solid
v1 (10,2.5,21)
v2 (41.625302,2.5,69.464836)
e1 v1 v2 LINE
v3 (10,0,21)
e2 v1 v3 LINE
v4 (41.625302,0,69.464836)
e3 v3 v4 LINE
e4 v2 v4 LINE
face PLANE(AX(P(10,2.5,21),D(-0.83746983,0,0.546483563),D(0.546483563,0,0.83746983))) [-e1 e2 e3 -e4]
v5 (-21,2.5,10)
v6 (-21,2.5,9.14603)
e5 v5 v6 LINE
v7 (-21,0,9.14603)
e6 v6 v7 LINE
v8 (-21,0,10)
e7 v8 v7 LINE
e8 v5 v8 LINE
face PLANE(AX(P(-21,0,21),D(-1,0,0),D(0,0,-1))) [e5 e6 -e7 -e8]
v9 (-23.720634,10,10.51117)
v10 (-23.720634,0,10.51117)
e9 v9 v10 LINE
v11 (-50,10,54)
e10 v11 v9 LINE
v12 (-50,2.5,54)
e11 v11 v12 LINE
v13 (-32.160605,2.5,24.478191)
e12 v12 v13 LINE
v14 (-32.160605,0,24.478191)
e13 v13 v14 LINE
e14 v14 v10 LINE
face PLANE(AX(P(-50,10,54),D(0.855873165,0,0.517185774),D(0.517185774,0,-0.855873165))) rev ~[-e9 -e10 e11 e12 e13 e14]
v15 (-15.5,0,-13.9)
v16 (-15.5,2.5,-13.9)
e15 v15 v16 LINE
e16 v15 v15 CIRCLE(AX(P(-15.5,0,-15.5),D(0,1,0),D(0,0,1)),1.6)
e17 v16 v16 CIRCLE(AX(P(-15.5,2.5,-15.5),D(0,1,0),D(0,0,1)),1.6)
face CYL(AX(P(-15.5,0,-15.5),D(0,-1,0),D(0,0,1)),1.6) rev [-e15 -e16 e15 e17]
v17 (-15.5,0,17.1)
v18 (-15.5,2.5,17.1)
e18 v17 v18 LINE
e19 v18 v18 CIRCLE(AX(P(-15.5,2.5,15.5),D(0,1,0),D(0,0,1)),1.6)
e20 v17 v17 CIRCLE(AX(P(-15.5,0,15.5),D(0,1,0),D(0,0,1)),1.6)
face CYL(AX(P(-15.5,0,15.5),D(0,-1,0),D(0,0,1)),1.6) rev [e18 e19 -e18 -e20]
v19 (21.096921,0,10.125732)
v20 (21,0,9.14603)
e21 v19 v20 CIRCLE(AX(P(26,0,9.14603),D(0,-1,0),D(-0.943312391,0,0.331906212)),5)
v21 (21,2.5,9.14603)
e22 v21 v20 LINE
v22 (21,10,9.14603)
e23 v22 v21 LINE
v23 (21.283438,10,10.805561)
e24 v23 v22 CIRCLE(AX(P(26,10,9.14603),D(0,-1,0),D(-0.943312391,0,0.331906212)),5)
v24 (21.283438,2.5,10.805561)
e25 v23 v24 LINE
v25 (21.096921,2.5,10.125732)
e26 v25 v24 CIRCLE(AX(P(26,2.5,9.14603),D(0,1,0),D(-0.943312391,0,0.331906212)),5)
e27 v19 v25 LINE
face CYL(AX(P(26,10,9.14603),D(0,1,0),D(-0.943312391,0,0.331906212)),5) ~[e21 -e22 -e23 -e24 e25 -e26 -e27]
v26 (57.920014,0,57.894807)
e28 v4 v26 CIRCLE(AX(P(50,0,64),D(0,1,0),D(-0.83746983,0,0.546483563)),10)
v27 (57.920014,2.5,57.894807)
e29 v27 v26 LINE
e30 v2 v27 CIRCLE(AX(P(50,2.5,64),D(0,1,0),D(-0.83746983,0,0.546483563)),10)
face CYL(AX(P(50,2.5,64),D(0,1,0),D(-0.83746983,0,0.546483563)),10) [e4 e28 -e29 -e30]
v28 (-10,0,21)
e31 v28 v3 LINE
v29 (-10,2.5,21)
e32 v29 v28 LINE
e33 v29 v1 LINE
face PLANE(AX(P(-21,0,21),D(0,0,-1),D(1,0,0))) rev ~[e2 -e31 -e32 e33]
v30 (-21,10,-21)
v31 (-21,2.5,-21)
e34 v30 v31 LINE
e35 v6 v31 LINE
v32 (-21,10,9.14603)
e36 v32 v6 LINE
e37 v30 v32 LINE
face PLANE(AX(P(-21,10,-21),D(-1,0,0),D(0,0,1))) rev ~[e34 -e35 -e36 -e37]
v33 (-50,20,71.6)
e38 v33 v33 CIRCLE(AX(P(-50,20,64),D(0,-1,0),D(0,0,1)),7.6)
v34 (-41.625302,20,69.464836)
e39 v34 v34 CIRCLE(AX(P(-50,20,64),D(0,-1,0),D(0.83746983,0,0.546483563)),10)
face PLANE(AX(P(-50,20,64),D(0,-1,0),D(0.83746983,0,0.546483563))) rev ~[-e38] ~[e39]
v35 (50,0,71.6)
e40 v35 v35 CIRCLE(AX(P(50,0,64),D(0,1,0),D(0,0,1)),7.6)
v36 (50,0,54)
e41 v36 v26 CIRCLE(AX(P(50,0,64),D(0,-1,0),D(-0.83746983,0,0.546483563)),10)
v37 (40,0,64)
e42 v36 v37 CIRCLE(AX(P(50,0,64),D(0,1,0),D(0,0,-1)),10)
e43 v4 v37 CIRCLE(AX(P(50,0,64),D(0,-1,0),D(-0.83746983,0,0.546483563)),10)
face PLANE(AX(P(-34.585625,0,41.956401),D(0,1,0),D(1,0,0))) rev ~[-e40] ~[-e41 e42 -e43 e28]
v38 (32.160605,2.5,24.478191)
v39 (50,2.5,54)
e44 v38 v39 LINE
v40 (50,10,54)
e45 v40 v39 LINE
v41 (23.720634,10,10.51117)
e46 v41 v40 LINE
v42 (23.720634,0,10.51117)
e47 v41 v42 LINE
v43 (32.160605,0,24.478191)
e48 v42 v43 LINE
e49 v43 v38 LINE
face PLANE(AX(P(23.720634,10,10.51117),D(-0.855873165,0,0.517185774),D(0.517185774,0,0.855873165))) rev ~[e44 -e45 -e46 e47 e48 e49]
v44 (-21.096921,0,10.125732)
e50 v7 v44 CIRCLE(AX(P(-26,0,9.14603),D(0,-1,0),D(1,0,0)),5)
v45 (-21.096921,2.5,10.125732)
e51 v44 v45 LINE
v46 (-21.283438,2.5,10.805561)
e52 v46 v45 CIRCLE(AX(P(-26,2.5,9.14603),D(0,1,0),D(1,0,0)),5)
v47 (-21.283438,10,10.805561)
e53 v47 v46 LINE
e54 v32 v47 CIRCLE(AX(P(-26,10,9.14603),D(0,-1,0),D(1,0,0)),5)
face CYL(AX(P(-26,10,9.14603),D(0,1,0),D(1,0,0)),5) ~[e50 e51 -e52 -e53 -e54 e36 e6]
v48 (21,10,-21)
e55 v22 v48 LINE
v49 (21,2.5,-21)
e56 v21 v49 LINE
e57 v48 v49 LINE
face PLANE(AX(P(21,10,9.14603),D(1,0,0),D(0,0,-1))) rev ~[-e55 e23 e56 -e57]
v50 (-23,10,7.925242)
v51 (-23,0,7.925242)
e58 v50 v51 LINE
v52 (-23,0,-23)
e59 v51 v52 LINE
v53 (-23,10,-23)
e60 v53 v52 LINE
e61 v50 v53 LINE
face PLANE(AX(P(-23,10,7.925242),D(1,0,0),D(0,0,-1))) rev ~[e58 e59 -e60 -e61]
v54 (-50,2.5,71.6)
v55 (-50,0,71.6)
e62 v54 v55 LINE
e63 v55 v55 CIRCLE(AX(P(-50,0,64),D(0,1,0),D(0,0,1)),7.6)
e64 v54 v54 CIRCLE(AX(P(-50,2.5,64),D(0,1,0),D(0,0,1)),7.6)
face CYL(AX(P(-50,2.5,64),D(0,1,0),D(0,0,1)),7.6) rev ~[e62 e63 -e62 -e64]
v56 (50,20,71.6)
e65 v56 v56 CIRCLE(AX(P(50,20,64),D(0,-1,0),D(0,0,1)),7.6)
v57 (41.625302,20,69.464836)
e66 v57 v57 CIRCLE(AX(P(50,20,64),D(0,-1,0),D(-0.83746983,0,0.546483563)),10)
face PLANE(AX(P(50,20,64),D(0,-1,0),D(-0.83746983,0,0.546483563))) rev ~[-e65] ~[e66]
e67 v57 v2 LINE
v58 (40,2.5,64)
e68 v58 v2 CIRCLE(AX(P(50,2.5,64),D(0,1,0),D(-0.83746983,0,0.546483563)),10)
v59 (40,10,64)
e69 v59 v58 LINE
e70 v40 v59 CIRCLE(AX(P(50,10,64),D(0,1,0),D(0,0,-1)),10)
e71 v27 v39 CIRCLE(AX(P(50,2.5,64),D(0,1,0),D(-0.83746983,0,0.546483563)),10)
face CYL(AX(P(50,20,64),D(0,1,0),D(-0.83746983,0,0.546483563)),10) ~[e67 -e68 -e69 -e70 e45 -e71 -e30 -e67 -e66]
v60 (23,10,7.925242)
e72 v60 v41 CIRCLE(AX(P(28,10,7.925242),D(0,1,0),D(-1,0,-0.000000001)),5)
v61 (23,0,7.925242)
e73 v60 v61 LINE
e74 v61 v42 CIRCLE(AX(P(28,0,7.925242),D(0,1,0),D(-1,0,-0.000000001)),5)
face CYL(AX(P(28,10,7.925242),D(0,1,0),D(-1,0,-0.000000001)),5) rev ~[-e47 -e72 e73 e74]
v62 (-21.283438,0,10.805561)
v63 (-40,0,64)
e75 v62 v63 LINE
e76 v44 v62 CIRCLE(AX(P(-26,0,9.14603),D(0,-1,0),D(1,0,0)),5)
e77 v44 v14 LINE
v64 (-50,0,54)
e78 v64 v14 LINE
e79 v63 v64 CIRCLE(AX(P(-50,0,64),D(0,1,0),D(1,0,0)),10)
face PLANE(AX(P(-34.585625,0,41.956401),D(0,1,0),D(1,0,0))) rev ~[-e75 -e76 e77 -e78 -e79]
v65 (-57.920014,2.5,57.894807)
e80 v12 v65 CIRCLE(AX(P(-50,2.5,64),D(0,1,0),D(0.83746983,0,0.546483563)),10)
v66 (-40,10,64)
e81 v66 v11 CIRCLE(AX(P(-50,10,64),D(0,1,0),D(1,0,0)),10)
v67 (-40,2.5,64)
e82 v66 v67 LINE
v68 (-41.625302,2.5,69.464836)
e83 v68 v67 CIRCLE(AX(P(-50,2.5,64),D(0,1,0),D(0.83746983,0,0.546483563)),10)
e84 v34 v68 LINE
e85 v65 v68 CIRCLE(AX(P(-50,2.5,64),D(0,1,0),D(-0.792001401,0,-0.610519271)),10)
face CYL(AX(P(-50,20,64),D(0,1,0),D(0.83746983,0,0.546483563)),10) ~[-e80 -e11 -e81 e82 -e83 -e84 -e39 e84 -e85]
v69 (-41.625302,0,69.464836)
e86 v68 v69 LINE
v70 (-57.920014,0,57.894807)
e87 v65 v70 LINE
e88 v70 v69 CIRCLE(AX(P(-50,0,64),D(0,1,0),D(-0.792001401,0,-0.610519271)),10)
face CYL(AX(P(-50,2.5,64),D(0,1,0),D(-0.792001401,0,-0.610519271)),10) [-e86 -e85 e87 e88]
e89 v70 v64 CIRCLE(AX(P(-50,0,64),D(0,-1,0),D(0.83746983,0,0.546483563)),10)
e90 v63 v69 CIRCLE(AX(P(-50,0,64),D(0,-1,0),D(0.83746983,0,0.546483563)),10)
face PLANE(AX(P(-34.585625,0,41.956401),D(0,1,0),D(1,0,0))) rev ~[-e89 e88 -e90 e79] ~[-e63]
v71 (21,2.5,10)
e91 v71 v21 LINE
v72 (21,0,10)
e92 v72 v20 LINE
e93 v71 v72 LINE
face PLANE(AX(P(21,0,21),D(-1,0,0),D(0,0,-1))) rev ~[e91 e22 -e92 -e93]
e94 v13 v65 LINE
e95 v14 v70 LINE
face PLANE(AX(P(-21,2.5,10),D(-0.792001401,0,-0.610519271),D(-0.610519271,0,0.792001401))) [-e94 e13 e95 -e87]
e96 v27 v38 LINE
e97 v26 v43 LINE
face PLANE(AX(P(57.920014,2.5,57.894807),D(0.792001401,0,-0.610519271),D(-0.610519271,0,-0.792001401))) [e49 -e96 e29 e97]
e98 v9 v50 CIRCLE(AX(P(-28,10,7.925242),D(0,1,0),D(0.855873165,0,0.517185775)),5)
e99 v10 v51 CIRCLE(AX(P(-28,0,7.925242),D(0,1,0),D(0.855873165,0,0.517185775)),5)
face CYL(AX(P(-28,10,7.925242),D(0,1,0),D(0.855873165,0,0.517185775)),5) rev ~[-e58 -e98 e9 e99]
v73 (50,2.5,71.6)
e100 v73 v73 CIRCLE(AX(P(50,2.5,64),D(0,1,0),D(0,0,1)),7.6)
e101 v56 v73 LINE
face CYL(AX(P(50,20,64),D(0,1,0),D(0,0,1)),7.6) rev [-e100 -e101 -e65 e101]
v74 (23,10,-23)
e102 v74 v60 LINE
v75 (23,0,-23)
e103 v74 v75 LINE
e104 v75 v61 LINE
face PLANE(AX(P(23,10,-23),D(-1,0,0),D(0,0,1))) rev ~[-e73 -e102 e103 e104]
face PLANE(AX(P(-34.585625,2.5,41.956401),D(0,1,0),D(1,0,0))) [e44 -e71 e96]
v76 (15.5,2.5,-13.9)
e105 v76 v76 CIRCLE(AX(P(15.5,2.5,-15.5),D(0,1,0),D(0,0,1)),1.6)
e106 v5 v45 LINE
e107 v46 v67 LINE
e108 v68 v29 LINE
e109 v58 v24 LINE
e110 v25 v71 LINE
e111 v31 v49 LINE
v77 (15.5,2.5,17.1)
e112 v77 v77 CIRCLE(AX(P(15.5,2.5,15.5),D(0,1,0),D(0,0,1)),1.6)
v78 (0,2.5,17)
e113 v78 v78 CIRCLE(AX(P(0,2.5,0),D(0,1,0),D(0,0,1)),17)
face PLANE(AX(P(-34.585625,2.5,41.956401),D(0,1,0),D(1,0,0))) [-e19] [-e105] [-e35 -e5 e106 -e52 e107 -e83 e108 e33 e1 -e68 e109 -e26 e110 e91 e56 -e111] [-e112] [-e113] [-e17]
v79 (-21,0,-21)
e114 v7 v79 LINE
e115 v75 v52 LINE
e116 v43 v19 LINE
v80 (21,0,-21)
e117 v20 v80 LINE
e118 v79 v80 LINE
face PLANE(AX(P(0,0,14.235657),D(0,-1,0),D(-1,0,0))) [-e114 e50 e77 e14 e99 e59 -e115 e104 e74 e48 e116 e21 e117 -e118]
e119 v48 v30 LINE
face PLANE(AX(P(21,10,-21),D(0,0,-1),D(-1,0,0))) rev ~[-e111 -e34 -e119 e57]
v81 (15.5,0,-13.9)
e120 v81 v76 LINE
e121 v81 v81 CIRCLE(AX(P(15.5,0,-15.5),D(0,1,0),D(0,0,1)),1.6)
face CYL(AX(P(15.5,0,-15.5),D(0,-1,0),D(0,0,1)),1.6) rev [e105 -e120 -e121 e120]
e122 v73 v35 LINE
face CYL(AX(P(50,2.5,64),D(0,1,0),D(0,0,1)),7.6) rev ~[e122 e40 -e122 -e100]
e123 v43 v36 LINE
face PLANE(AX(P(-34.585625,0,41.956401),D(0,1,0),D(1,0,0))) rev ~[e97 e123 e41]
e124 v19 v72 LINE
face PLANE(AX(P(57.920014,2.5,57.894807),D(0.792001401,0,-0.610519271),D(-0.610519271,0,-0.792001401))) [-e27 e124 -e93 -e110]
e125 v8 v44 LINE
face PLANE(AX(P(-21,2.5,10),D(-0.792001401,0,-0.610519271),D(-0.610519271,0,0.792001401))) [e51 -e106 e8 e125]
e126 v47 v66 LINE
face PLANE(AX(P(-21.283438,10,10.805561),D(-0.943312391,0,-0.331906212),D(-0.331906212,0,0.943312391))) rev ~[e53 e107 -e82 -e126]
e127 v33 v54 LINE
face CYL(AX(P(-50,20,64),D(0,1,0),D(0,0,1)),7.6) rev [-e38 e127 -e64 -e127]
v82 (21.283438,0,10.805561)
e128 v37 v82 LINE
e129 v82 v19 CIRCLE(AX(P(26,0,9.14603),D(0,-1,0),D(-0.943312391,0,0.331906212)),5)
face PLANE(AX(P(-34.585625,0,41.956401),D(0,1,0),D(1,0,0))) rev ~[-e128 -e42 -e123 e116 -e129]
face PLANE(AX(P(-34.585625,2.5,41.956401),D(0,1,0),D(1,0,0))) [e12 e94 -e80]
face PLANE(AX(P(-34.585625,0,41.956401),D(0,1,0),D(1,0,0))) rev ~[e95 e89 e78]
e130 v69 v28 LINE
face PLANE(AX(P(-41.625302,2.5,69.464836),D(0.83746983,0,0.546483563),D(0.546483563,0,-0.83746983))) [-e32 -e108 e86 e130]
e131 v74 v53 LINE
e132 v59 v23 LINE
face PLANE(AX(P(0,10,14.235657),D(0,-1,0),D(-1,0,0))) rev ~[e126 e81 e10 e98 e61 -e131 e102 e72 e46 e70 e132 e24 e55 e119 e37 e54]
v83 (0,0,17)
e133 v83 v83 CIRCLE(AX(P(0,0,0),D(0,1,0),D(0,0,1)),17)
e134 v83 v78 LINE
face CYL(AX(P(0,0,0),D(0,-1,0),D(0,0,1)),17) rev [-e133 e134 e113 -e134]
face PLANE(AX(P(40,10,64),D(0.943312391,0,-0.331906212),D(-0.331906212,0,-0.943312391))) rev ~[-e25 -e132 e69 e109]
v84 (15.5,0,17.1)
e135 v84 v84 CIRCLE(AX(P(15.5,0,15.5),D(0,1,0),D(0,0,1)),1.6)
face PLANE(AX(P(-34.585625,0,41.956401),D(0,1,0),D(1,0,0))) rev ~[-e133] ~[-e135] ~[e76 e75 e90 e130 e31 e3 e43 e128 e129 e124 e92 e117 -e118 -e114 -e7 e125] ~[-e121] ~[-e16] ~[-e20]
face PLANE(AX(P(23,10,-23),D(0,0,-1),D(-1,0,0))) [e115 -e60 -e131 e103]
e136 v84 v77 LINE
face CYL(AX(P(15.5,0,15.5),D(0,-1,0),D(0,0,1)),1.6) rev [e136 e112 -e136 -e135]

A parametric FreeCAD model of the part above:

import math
import FreeCAD as App
import Part
import Sketcher
from FreeCAD import Vector
Q = App.Units.Quantity


def add_polygon(sketch, points):
    """Adds a closed chain of lines whose ends are joined by coincident constraints."""
    first, n = sketch.GeometryCount, len(points)
    for a, b in zip(points, points[1:] + points[:1]):
        sketch.addGeometry(Part.LineSegment(App.Vector(*a, 0), App.Vector(*b, 0)), False)
    for i in range(n):
        sketch.addConstraint(Sketcher.Constraint("Coincident", first + i, 2, first + (i + 1) % n, 1))

doc = App.newDocument("Part")
body = doc.addObject("PartDesign::Body", "Body")

sketch1 = body.newObject("Sketcher::SketchObject", "Sketch")
sketch1.AttachmentSupport = (doc.getObject("XZ_Plane"), [""])
sketch1.MapMode = "FlatFace"
add_polygon(sketch1, [(-21, -21), (-21, 21), (21, 21), (21, -21)])
sketch1.addGeometry(Part.Circle(Vector(-15.5, 15.5, 0), Vector(0, 0, 1), 1.6), False)
sketch1.addGeometry(Part.Circle(Vector(15.5, 15.5, 0), Vector(0, 0, 1), 1.6), False)
sketch1.addGeometry(Part.Circle(Vector(-15.5, -15.5, 0), Vector(0, 0, 1), 1.6), False)
sketch1.addGeometry(Part.Circle(Vector(0, 0, 0), Vector(0, 0, 1), 17), False)
sketch1.addGeometry(Part.Circle(Vector(15.5, -15.5, 0), Vector(0, 0, 1), 1.6), False)
sketch1.addConstraint([
    Sketcher.Constraint("Vertical", 0),
    Sketcher.Constraint("Horizontal", 1),
    Sketcher.Constraint("Vertical", 2),
    Sketcher.Constraint("Horizontal", 3),
    Sketcher.Constraint("Coincident", 7, 3, -1, 1),
    Sketcher.Constraint("Equal", 4, 5),
    Sketcher.Constraint("Equal", 5, 6),
    Sketcher.Constraint("Equal", 6, 8),
    Sketcher.Constraint("Symmetric", 5, 3, 6, 3, -1, 1),
    Sketcher.Constraint("Symmetric", 4, 3, 8, 3, -1, 1),
    Sketcher.Constraint("Symmetric", 0, 2, 2, 2, -1, 1),
    Sketcher.Constraint("Symmetric", 4, 3, 5, 3, -2),
    Sketcher.Constraint("Equal", 3, 0),
    Sketcher.Constraint("Diameter", 7, Q("34 mm")),
    Sketcher.Constraint("Diameter", 4, Q("3.2 mm")),
    Sketcher.Constraint("DistanceX", 1, 1, 1, 2, Q("42 mm")),
    Sketcher.Constraint("DistanceX", 4, 3, 5, 3, Q("31 mm")),
    Sketcher.Constraint("DistanceY", 6, 3, 4, 3, Q("31 mm")),
])
pad1 = body.newObject("PartDesign::Pad", "Pad")
pad1.Profile = sketch1
pad1.Length = 2.5
pad1.Reversed = True

sketch2 = body.newObject("Sketcher::SketchObject", "Sketch001")
sketch2.AttachmentSupport = (doc.getObject("XZ_Plane"), [""])
sketch2.MapMode = "FlatFace"
sketch2.AttachmentOffset = App.Placement(Vector(0, 0, -2.5), App.Rotation())
sketch2.addGeometry([
    Part.LineSegment(Vector(-21, 21, 0), Vector(-21, 10, 0)),
    Part.LineSegment(Vector(-21, 10, 0), Vector(-57.920014, 57.894807, 0)),
    Part.ArcOfCircle(Part.Circle(Vector(-50, 64, 0), Vector(0, 0, 1), 10), math.radians(33.126104), math.radians(217.627059)),
    Part.LineSegment(Vector(-41.625302, 69.464836, 0), Vector(-10, 21, 0)),
    Part.LineSegment(Vector(-10, 21, 0), Vector(-21, 21, 0)),
    Part.Circle(Vector(-50, 64, 0), Vector(0, 0, 1), 7.6),
    Part.LineSegment(Vector(57.920014, 57.894807, 0), Vector(21, 10, 0)),
    Part.LineSegment(Vector(21, 10, 0), Vector(21, 21, 0)),
    Part.LineSegment(Vector(21, 21, 0), Vector(10, 21, 0)),
    Part.LineSegment(Vector(10, 21, 0), Vector(41.625302, 69.464836, 0)),
    Part.ArcOfCircle(Part.Circle(Vector(50, 64, 0), Vector(0, 0, 1), 10), math.radians(-37.627059), math.radians(146.873896)),
    Part.Circle(Vector(50, 64, 0), Vector(0, 0, 1), 7.6),
], False)
sketch2.addConstraint([
    Sketcher.Constraint("Coincident", 0, 2, 1, 1),
    Sketcher.Constraint("Tangent", 1, 2, 2, 2),
    Sketcher.Constraint("Tangent", 2, 1, 3, 1),
    Sketcher.Constraint("Coincident", 3, 2, 4, 1),
    Sketcher.Constraint("Coincident", 4, 2, 0, 1),
    Sketcher.Constraint("Coincident", 6, 2, 7, 1),
    Sketcher.Constraint("Coincident", 7, 2, 8, 1),
    Sketcher.Constraint("Coincident", 8, 2, 9, 1),
    Sketcher.Constraint("Tangent", 9, 2, 10, 2),
    Sketcher.Constraint("Tangent", 10, 1, 6, 1),
    Sketcher.Constraint("Vertical", 0),
    Sketcher.Constraint("Horizontal", 4),
    Sketcher.Constraint("Vertical", 7),
    Sketcher.Constraint("Horizontal", 8),
    Sketcher.Constraint("Coincident", 5, 3, 2, 3),
    Sketcher.Constraint("Coincident", 11, 3, 10, 3),
    Sketcher.Constraint("Equal", 2, 10),
    Sketcher.Constraint("Equal", 5, 11),
    Sketcher.Constraint("Symmetric", 2, 3, 10, 3, -2),
    Sketcher.Constraint("Symmetric", 0, 2, 6, 2, -2),
    Sketcher.Constraint("Symmetric", 3, 2, 8, 2, -2),
    Sketcher.Constraint("Equal", 8, 0),
    Sketcher.Constraint("Radius", 2, Q("10 mm")),
    Sketcher.Constraint("Diameter", 5, Q("15.2 mm")),
    Sketcher.Constraint("DistanceX", 4, 2, 4, 1, Q("11 mm")),
    Sketcher.Constraint("DistanceX", 2, 3, -1, 1, Q("50 mm")),
    Sketcher.Constraint("DistanceY", -1, 1, 2, 3, Q("64 mm")),
    Sketcher.Constraint("DistanceX", 0, 2, -1, 1, Q("21 mm")),
    Sketcher.Constraint("DistanceY", -1, 1, 0, 2, Q("10 mm")),
])
pad2 = body.newObject("PartDesign::Pad", "Pad001")
pad2.Profile = sketch2
pad2.Length = 2.5

sketch3 = body.newObject("Sketcher::SketchObject", "Sketch002")
sketch3.AttachmentSupport = (doc.getObject("XZ_Plane"), [""])
sketch3.MapMode = "FlatFace"
sketch3.AttachmentOffset = App.Placement(Vector(0, 0, -20), App.Rotation())
sketch3.addGeometry([
    Part.Circle(Vector(-50, 64, 0), Vector(0, 0, 1), 10),
    Part.Circle(Vector(-50, 64, 0), Vector(0, 0, 1), 7.6),
    Part.Circle(Vector(50, 64, 0), Vector(0, 0, 1), 10),
    Part.Circle(Vector(50, 64, 0), Vector(0, 0, 1), 7.6),
], False)
sketch3.addConstraint([
    Sketcher.Constraint("Coincident", 1, 3, 0, 3),
    Sketcher.Constraint("Coincident", 3, 3, 2, 3),
    Sketcher.Constraint("Equal", 0, 2),
    Sketcher.Constraint("Equal", 1, 3),
    Sketcher.Constraint("Symmetric", 0, 3, 2, 3, -2),
    Sketcher.Constraint("Diameter", 0, Q("20 mm")),
    Sketcher.Constraint("Diameter", 1, Q("15.2 mm")),
    Sketcher.Constraint("DistanceX", 0, 3, -1, 1, Q("50 mm")),
    Sketcher.Constraint("DistanceY", -1, 1, 0, 3, Q("64 mm")),
])
pad3 = body.newObject("PartDesign::Pad", "Pad002")
pad3.Profile = sketch3
pad3.Length = 20

sketch4 = body.newObject("Sketcher::SketchObject", "Sketch003")
sketch4.AttachmentSupport = (doc.getObject("XZ_Plane"), [""])
sketch4.MapMode = "FlatFace"
sketch4.AttachmentOffset = App.Placement(Vector(0, 0, -10), App.Rotation())
sketch4.addGeometry([
    Part.LineSegment(Vector(-23.720634, 10.51117, 0), Vector(-50, 54, 0)),
    Part.ArcOfCircle(Part.Circle(Vector(-50, 64, 0), Vector(0, 0, 1), 10), math.radians(-90), math.radians(0)),
    Part.LineSegment(Vector(-40, 64, 0), Vector(-21.283438, 10.805561, 0)),
    Part.ArcOfCircle(Part.Circle(Vector(-26, 9.14603, 0), Vector(0, 0, 1), 5), math.radians(0), math.radians(19.384516)),
    Part.LineSegment(Vector(-21, 9.14603, 0), Vector(-21, -21, 0)),
    Part.LineSegment(Vector(-21, -21, 0), Vector(21, -21, 0)),
    Part.LineSegment(Vector(21, -21, 0), Vector(21, 9.14603, 0)),
    Part.ArcOfCircle(Part.Circle(Vector(26, 9.14603, 0), Vector(0, 0, 1), 5), math.radians(160.615484), math.radians(180)),
    Part.LineSegment(Vector(21.283438, 10.805561, 0), Vector(40, 64, 0)),
    Part.ArcOfCircle(Part.Circle(Vector(50, 64, 0), Vector(0, 0, 1), 10), math.radians(180), math.radians(270)),
    Part.LineSegment(Vector(50, 54, 0), Vector(23.720634, 10.51117, 0)),
    Part.ArcOfCircle(Part.Circle(Vector(28, 7.925242, 0), Vector(0, 0, 1), 5), math.radians(148.856333), math.radians(180)),
    Part.LineSegment(Vector(23, 7.925242, 0), Vector(23, -23, 0)),
    Part.LineSegment(Vector(23, -23, 0), Vector(-23, -23, 0)),
    Part.LineSegment(Vector(-23, -23, 0), Vector(-23, 7.925242, 0)),
    Part.ArcOfCircle(Part.Circle(Vector(-28, 7.925242, 0), Vector(0, 0, 1), 5), math.radians(0), math.radians(31.143667)),
], False)
sketch4.addConstraint([
    Sketcher.Constraint("Coincident", 0, 2, 1, 1),
    Sketcher.Constraint("Coincident", 1, 2, 2, 1),
    Sketcher.Constraint("Tangent", 2, 2, 3, 2),
    Sketcher.Constraint("Tangent", 3, 1, 4, 1),
    Sketcher.Constraint("Coincident", 4, 2, 5, 1),
    Sketcher.Constraint("Coincident", 5, 2, 6, 1),
    Sketcher.Constraint("Tangent", 6, 2, 7, 2),
    Sketcher.Constraint("Tangent", 7, 1, 8, 1),
    Sketcher.Constraint("Coincident", 8, 2, 9, 1),
    Sketcher.Constraint("Coincident", 9, 2, 10, 1),
    Sketcher.Constraint("Tangent", 10, 2, 11, 1),
    Sketcher.Constraint("Tangent", 11, 2, 12, 1),
    Sketcher.Constraint("Coincident", 12, 2, 13, 1),
    Sketcher.Constraint("Coincident", 13, 2, 14, 1),
    Sketcher.Constraint("Tangent", 14, 2, 15, 1),
    Sketcher.Constraint("Tangent", 15, 2, 0, 1),
    Sketcher.Constraint("Vertical", 4),
    Sketcher.Constraint("Horizontal", 5),
    Sketcher.Constraint("Vertical", 6),
    Sketcher.Constraint("Vertical", 12),
    Sketcher.Constraint("Horizontal", 13),
    Sketcher.Constraint("Vertical", 14),
    Sketcher.Constraint("Equal", 3, 7),
    Sketcher.Constraint("Equal", 1, 9),
    Sketcher.Constraint("Equal", 7, 11),
    Sketcher.Constraint("Equal", 11, 15),
    Sketcher.Constraint("Symmetric", 3, 3, 7, 3, -2),
    Sketcher.Constraint("Symmetric", 1, 3, 9, 3, -2),
    Sketcher.Constraint("Symmetric", 11, 3, 15, 3, -2),
    Sketcher.Constraint("Horizontal", 9, 3, 1, 2),
    Sketcher.Constraint("Horizontal", 2, 2, 7, 1),
    Sketcher.Constraint("Horizontal", 10, 2, 15, 2),
    Sketcher.Constraint("Vertical", 1, 3, 0, 2),
    Sketcher.Constraint("Radius", 1, Q("10 mm")),
    Sketcher.Constraint("Radius", 3, Q("5 mm")),
    Sketcher.Constraint("DistanceX", 5, 1, 5, 2, Q("42 mm")),
    Sketcher.Constraint("DistanceX", 13, 2, 13, 1, Q("46 mm")),
    Sketcher.Constraint("DistanceX", 1, 3, -1, 1, Q("50 mm")),
    Sketcher.Constraint("DistanceY", -1, 1, 1, 3, Q("64 mm")),
    Sketcher.Constraint("DistanceY", 4, 2, -1, 1, Q("21 mm")),
    Sketcher.Constraint("DistanceY", 12, 2, -1, 1, Q("23 mm")),
    Sketcher.Constraint("DistanceY", 4, 2, 4, 1, Q("30.14603 mm")),
    Sketcher.Constraint("DistanceY", 12, 2, 12, 1, Q("30.925242 mm")),
])
pad4 = body.newObject("PartDesign::Pad", "Pad003")
pad4.Profile = sketch4
pad4.Length = 10

doc.recompute()
